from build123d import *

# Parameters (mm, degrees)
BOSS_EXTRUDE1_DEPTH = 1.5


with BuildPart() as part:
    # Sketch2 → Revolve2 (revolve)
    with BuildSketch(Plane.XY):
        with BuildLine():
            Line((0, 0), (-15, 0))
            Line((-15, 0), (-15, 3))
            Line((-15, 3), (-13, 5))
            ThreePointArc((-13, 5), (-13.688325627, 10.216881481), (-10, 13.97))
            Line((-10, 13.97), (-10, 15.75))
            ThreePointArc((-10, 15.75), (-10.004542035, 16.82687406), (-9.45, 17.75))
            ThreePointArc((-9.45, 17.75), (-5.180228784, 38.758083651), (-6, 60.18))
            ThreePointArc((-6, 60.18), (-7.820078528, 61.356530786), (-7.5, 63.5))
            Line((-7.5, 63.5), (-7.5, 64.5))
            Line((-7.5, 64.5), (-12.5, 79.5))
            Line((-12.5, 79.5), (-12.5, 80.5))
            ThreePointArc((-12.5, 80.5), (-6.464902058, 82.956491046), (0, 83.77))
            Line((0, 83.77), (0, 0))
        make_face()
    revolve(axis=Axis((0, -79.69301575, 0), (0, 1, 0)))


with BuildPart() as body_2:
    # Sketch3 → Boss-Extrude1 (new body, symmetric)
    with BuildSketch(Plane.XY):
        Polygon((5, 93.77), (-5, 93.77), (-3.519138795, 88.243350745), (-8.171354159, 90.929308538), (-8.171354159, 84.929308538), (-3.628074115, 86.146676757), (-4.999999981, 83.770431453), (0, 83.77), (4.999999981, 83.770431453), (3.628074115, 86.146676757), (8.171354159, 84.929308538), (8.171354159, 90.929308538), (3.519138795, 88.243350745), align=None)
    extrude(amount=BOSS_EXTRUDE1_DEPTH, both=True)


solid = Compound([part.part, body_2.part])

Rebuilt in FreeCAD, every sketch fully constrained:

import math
import FreeCAD as App
import Part
import Sketcher
Q = App.Units.Quantity


def add_polygon(sketch, points):
    """Adds a closed chain of lines whose ends are joined by coincident constraints."""
    first, n = sketch.GeometryCount, len(points)
    for a, b in zip(points, points[1:] + points[:1]):
        sketch.addGeometry(Part.LineSegment(App.Vector(*a, 0), App.Vector(*b, 0)), False)
    for i in range(n):
        sketch.addConstraint(Sketcher.Constraint("Coincident", first + i, 2, first + (i + 1) % n, 1))

doc = App.newDocument("Part")
body = doc.addObject("PartDesign::Body", "Body")

sketch1 = doc.addObject("Sketcher::SketchObject", "Sketch")
body.addObject(sketch1)
sketch1.AttachmentSupport = (doc.XY_Plane, [""])
sketch1.MapMode = "FlatFace"
sketch1.addGeometry(Part.LineSegment(App.Vector(-15, 0, 0), App.Vector(0, 0, 0)), False)
sketch1.addGeometry(Part.LineSegment(App.Vector(0, 0, 0), App.Vector(0, 83.77, 0)), False)
sketch1.addGeometry(Part.ArcOfCircle(Part.Circle(App.Vector(-0.137815, 58.77038, 0), App.Vector(0, 0, 1), 25), math.radians(89.684149), math.radians(119.635954)), False)
sketch1.addGeometry(Part.LineSegment(App.Vector(-12.5, 80.5, 0), App.Vector(-12.5, 79.5, 0)), False)
sketch1.addGeometry(Part.LineSegment(App.Vector(-12.5, 79.5, 0), App.Vector(-7.5, 64.5, 0)), False)
sketch1.addGeometry(Part.LineSegment(App.Vector(-7.5, 64.5, 0), App.Vector(-7.5, 63.5, 0)), False)
sketch1.addGeometry(Part.ArcOfCircle(Part.Circle(App.Vector(-5.99747, 62.179998, 0), App.Vector(0, 0, 1), 2), math.radians(138.700066), math.radians(269.927527)), False)
sketch1.addGeometry(Part.ArcOfCircle(Part.Circle(App.Vector(-94.884184, 46.051948, 0), App.Vector(0, 0, 1), 90), math.radians(-18.328585), math.radians(9.031553)), False)
sketch1.addGeometry(Part.ArcOfCircle(Part.Circle(App.Vector(-8.076131, 16.296561, 0), App.Vector(0, 0, 1), 2), math.radians(133.387925), math.radians(195.859572)), False)
sketch1.addGeometry(Part.LineSegment(App.Vector(-10, 15.75, 0), App.Vector(-10, 13.97, 0)), False)
sketch1.addGeometry(Part.ArcOfCircle(Part.Circle(App.Vector(-7.998132, 8.313807, 0), App.Vector(0, 0, 1), 6), math.radians(109.490144), math.radians(213.525022)), False)
sketch1.addGeometry(Part.LineSegment(App.Vector(-13, 5, 0), App.Vector(-15, 3, 0)), False)
sketch1.addGeometry(Part.LineSegment(App.Vector(-15, 3, 0), App.Vector(-15, 0, 0)), False)
sketch1.addConstraint(Sketcher.Constraint("Coincident", 0, 2, 1, 1))
sketch1.addConstraint(Sketcher.Constraint("Coincident", 1, 2, 2, 1))
sketch1.addConstraint(Sketcher.Constraint("Coincident", 2, 2, 3, 1))
sketch1.addConstraint(Sketcher.Constraint("Coincident", 3, 2, 4, 1))
sketch1.addConstraint(Sketcher.Constraint("Coincident", 4, 2, 5, 1))
sketch1.addConstraint(Sketcher.Constraint("Coincident", 5, 2, 6, 1))
sketch1.addConstraint(Sketcher.Constraint("Coincident", 6, 2, 7, 2))
sketch1.addConstraint(Sketcher.Constraint("Coincident", 7, 1, 8, 1))
sketch1.addConstraint(Sketcher.Constraint("Coincident", 8, 2, 9, 1))
sketch1.addConstraint(Sketcher.Constraint("Coincident", 9, 2, 10, 1))
sketch1.addConstraint(Sketcher.Constraint("Coincident", 10, 2, 11, 1))
sketch1.addConstraint(Sketcher.Constraint("Coincident", 11, 2, 12, 1))
sketch1.addConstraint(Sketcher.Constraint("Coincident", 12, 2, 0, 1))
sketch1.addConstraint(Sketcher.Constraint("Horizontal", 0))
sketch1.addConstraint(Sketcher.Constraint("Vertical", 1))
sketch1.addConstraint(Sketcher.Constraint("Vertical", 3))
sketch1.addConstraint(Sketcher.Constraint("Vertical", 5))
sketch1.addConstraint(Sketcher.Constraint("Vertical", 9))
sketch1.addConstraint(Sketcher.Constraint("Vertical", 12))
sketch1.addConstraint(Sketcher.Constraint("Coincident", 0, 2, -1, 1))
sketch1.addConstraint(Sketcher.Constraint("Equal", 6, 8))
sketch1.addConstraint(Sketcher.Constraint("Equal", 3, 5))
sketch1.addConstraint(Sketcher.Constraint("Radius", 2, Q("25 mm")))
sketch1.addConstraint(Sketcher.Constraint("Radius", 6, Q("2 mm")))
sketch1.addConstraint(Sketcher.Constraint("Radius", 7, Q("90 mm")))
sketch1.addConstraint(Sketcher.Constraint("Radius", 10, Q("6 mm")))
sketch1.addConstraint(Sketcher.Constraint("DistanceX", 0, 1, 0, 2, Q("15 mm")))
sketch1.addConstraint(Sketcher.Constraint("DistanceY", 3, 2, 3, 1, Q("1 mm")))
sketch1.addConstraint(Sketcher.Constraint("DistanceY", 12, 2, 12, 1, Q("3 mm")))
sketch1.addConstraint(Sketcher.Constraint("Angle", 11, Q("-135 deg")))
sketch1.addConstraint(Sketcher.Constraint("DistanceX", 6, 2, -1, 1, Q("6 mm")))
sketch1.addConstraint(Sketcher.Constraint("DistanceX", 8, 2, -1, 1, Q("10 mm")))
sketch1.addConstraint(Sketcher.Constraint("DistanceX", 10, 2, -1, 1, Q("13 mm")))
sketch1.addConstraint(Sketcher.Constraint("DistanceX", 3, 2, 4, 2, Q("5 mm")))
sketch1.addConstraint(Sketcher.Constraint("DistanceY", 4, 2, 3, 2, Q("15 mm")))
sketch1.addConstraint(Sketcher.Constraint("DistanceY", 8, 2, 7, 1, Q("2 mm")))
sketch1.addConstraint(Sketcher.Constraint("DistanceY", 1, 1, 1, 2, Q("83.77 mm")))
sketch1.addConstraint(Sketcher.Constraint("DistanceY", 9, 2, 9, 1, Q("1.78 mm")))
sketch1.addConstraint(Sketcher.Constraint("DistanceX", 2, 2, -1, 1, Q("12.5 mm")))
sketch1.addConstraint(Sketcher.Constraint("DistanceY", -1, 1, 2, 2, Q("80.5 mm")))
sketch1.addConstraint(Sketcher.Constraint("DistanceY", -1, 1, 6, 3, Q("62.179998 mm")))
sketch1.addConstraint(Sketcher.Constraint("DistanceX", 7, 1, -1, 1, Q("9.45 mm")))
sketch1.addConstraint(Sketcher.Constraint("DistanceY", -1, 1, 7, 1, Q("17.75 mm")))
revolution = doc.addObject("PartDesign::Revolution", "Revolution")
body.addObject(revolution)
revolution.Profile = sketch1
revolution.ReferenceAxis = (sketch1, ["V_Axis"])
revolution.Angle = 360
body2 = doc.addObject("PartDesign::Body", "Body001")

sketch2 = doc.addObject("Sketcher::SketchObject", "Sketch001")
body2.addObject(sketch2)
sketch2.AttachmentSupport = (doc.getObject("XY_Plane001"), [""])
sketch2.MapMode = "FlatFace"
add_polygon(sketch2, [(5, 93.77), (-5, 93.77), (-3.519139, 88.243351), (-8.171354, 90.929309), (-8.171354, 84.929309), (-3.628074, 86.146677), (-5, 83.770431), (0, 83.77), (5, 83.770431), (3.628074, 86.146677), (8.171354, 84.929309), (8.171354, 90.929309), (3.519139, 88.243351)])
sketch2.addConstraint(Sketcher.Constraint("Horizontal", 0))
sketch2.addConstraint(Sketcher.Constraint("Vertical", 3))
sketch2.addConstraint(Sketcher.Constraint("Vertical", 10))
sketch2.addConstraint(Sketcher.Constraint("Symmetric", 5, 2, 7, 2, -2))
sketch2.addConstraint(Sketcher.Constraint("Symmetric", 4, 2, 8, 2, -2))
sketch2.addConstraint(Sketcher.Constraint("Symmetric", 3, 2, 9, 2, -2))
sketch2.addConstraint(Sketcher.Constraint("Symmetric", 1, 2, 11, 2, -2))
sketch2.addConstraint(Sketcher.Constraint("PointOnObject", 6, 2, -2))
sketch2.addConstraint(Sketcher.Constraint("Perpendicular", 1, 4))
sketch2.addConstraint(Sketcher.Constraint("Perpendicular", 2, 5))
sketch2.addConstraint(Sketcher.Constraint("Perpendicular", 8, 11))
sketch2.addConstraint(Sketcher.Constraint("Perpendicular", 9, 12))
sketch2.addConstraint(Sketcher.Constraint("Vertical", 0, 2, 5, 2))
sketch2.addConstraint(Sketcher.Constraint("DistanceX", 0, 2, 0, 1, Q("10 mm")))
sketch2.addConstraint(Sketcher.Constraint("DistanceY", 3, 2, 3, 1, Q("6 mm")))
sketch2.addConstraint(Sketcher.Constraint("Angle", 1, Q("-75 deg")))
sketch2.addConstraint(Sketcher.Constraint("Angle", 2, Q("150 deg")))
sketch2.addConstraint(Sketcher.Constraint("DistanceY", -1, 1, 0, 2, Q("93.77 mm")))
sketch2.addConstraint(Sketcher.Constraint("DistanceY", -1, 1, 6, 2, Q("83.77 mm")))
sketch2.addConstraint(Sketcher.Constraint("Distance", 1, Q("5.721608 mm")))
sketch2.addConstraint(Sketcher.Constraint("Distance", 4, Q("4.70355 mm")))
sketch2.addConstraint(Sketcher.Constraint("Distance", 5, Q("2.743852 mm")))
pad1 = doc.addObject("PartDesign::Pad", "Pad")
body2.addObject(pad1)
pad1.Profile = sketch2
pad1.Length = 3
pad1.Midplane = True

doc.recompute()
